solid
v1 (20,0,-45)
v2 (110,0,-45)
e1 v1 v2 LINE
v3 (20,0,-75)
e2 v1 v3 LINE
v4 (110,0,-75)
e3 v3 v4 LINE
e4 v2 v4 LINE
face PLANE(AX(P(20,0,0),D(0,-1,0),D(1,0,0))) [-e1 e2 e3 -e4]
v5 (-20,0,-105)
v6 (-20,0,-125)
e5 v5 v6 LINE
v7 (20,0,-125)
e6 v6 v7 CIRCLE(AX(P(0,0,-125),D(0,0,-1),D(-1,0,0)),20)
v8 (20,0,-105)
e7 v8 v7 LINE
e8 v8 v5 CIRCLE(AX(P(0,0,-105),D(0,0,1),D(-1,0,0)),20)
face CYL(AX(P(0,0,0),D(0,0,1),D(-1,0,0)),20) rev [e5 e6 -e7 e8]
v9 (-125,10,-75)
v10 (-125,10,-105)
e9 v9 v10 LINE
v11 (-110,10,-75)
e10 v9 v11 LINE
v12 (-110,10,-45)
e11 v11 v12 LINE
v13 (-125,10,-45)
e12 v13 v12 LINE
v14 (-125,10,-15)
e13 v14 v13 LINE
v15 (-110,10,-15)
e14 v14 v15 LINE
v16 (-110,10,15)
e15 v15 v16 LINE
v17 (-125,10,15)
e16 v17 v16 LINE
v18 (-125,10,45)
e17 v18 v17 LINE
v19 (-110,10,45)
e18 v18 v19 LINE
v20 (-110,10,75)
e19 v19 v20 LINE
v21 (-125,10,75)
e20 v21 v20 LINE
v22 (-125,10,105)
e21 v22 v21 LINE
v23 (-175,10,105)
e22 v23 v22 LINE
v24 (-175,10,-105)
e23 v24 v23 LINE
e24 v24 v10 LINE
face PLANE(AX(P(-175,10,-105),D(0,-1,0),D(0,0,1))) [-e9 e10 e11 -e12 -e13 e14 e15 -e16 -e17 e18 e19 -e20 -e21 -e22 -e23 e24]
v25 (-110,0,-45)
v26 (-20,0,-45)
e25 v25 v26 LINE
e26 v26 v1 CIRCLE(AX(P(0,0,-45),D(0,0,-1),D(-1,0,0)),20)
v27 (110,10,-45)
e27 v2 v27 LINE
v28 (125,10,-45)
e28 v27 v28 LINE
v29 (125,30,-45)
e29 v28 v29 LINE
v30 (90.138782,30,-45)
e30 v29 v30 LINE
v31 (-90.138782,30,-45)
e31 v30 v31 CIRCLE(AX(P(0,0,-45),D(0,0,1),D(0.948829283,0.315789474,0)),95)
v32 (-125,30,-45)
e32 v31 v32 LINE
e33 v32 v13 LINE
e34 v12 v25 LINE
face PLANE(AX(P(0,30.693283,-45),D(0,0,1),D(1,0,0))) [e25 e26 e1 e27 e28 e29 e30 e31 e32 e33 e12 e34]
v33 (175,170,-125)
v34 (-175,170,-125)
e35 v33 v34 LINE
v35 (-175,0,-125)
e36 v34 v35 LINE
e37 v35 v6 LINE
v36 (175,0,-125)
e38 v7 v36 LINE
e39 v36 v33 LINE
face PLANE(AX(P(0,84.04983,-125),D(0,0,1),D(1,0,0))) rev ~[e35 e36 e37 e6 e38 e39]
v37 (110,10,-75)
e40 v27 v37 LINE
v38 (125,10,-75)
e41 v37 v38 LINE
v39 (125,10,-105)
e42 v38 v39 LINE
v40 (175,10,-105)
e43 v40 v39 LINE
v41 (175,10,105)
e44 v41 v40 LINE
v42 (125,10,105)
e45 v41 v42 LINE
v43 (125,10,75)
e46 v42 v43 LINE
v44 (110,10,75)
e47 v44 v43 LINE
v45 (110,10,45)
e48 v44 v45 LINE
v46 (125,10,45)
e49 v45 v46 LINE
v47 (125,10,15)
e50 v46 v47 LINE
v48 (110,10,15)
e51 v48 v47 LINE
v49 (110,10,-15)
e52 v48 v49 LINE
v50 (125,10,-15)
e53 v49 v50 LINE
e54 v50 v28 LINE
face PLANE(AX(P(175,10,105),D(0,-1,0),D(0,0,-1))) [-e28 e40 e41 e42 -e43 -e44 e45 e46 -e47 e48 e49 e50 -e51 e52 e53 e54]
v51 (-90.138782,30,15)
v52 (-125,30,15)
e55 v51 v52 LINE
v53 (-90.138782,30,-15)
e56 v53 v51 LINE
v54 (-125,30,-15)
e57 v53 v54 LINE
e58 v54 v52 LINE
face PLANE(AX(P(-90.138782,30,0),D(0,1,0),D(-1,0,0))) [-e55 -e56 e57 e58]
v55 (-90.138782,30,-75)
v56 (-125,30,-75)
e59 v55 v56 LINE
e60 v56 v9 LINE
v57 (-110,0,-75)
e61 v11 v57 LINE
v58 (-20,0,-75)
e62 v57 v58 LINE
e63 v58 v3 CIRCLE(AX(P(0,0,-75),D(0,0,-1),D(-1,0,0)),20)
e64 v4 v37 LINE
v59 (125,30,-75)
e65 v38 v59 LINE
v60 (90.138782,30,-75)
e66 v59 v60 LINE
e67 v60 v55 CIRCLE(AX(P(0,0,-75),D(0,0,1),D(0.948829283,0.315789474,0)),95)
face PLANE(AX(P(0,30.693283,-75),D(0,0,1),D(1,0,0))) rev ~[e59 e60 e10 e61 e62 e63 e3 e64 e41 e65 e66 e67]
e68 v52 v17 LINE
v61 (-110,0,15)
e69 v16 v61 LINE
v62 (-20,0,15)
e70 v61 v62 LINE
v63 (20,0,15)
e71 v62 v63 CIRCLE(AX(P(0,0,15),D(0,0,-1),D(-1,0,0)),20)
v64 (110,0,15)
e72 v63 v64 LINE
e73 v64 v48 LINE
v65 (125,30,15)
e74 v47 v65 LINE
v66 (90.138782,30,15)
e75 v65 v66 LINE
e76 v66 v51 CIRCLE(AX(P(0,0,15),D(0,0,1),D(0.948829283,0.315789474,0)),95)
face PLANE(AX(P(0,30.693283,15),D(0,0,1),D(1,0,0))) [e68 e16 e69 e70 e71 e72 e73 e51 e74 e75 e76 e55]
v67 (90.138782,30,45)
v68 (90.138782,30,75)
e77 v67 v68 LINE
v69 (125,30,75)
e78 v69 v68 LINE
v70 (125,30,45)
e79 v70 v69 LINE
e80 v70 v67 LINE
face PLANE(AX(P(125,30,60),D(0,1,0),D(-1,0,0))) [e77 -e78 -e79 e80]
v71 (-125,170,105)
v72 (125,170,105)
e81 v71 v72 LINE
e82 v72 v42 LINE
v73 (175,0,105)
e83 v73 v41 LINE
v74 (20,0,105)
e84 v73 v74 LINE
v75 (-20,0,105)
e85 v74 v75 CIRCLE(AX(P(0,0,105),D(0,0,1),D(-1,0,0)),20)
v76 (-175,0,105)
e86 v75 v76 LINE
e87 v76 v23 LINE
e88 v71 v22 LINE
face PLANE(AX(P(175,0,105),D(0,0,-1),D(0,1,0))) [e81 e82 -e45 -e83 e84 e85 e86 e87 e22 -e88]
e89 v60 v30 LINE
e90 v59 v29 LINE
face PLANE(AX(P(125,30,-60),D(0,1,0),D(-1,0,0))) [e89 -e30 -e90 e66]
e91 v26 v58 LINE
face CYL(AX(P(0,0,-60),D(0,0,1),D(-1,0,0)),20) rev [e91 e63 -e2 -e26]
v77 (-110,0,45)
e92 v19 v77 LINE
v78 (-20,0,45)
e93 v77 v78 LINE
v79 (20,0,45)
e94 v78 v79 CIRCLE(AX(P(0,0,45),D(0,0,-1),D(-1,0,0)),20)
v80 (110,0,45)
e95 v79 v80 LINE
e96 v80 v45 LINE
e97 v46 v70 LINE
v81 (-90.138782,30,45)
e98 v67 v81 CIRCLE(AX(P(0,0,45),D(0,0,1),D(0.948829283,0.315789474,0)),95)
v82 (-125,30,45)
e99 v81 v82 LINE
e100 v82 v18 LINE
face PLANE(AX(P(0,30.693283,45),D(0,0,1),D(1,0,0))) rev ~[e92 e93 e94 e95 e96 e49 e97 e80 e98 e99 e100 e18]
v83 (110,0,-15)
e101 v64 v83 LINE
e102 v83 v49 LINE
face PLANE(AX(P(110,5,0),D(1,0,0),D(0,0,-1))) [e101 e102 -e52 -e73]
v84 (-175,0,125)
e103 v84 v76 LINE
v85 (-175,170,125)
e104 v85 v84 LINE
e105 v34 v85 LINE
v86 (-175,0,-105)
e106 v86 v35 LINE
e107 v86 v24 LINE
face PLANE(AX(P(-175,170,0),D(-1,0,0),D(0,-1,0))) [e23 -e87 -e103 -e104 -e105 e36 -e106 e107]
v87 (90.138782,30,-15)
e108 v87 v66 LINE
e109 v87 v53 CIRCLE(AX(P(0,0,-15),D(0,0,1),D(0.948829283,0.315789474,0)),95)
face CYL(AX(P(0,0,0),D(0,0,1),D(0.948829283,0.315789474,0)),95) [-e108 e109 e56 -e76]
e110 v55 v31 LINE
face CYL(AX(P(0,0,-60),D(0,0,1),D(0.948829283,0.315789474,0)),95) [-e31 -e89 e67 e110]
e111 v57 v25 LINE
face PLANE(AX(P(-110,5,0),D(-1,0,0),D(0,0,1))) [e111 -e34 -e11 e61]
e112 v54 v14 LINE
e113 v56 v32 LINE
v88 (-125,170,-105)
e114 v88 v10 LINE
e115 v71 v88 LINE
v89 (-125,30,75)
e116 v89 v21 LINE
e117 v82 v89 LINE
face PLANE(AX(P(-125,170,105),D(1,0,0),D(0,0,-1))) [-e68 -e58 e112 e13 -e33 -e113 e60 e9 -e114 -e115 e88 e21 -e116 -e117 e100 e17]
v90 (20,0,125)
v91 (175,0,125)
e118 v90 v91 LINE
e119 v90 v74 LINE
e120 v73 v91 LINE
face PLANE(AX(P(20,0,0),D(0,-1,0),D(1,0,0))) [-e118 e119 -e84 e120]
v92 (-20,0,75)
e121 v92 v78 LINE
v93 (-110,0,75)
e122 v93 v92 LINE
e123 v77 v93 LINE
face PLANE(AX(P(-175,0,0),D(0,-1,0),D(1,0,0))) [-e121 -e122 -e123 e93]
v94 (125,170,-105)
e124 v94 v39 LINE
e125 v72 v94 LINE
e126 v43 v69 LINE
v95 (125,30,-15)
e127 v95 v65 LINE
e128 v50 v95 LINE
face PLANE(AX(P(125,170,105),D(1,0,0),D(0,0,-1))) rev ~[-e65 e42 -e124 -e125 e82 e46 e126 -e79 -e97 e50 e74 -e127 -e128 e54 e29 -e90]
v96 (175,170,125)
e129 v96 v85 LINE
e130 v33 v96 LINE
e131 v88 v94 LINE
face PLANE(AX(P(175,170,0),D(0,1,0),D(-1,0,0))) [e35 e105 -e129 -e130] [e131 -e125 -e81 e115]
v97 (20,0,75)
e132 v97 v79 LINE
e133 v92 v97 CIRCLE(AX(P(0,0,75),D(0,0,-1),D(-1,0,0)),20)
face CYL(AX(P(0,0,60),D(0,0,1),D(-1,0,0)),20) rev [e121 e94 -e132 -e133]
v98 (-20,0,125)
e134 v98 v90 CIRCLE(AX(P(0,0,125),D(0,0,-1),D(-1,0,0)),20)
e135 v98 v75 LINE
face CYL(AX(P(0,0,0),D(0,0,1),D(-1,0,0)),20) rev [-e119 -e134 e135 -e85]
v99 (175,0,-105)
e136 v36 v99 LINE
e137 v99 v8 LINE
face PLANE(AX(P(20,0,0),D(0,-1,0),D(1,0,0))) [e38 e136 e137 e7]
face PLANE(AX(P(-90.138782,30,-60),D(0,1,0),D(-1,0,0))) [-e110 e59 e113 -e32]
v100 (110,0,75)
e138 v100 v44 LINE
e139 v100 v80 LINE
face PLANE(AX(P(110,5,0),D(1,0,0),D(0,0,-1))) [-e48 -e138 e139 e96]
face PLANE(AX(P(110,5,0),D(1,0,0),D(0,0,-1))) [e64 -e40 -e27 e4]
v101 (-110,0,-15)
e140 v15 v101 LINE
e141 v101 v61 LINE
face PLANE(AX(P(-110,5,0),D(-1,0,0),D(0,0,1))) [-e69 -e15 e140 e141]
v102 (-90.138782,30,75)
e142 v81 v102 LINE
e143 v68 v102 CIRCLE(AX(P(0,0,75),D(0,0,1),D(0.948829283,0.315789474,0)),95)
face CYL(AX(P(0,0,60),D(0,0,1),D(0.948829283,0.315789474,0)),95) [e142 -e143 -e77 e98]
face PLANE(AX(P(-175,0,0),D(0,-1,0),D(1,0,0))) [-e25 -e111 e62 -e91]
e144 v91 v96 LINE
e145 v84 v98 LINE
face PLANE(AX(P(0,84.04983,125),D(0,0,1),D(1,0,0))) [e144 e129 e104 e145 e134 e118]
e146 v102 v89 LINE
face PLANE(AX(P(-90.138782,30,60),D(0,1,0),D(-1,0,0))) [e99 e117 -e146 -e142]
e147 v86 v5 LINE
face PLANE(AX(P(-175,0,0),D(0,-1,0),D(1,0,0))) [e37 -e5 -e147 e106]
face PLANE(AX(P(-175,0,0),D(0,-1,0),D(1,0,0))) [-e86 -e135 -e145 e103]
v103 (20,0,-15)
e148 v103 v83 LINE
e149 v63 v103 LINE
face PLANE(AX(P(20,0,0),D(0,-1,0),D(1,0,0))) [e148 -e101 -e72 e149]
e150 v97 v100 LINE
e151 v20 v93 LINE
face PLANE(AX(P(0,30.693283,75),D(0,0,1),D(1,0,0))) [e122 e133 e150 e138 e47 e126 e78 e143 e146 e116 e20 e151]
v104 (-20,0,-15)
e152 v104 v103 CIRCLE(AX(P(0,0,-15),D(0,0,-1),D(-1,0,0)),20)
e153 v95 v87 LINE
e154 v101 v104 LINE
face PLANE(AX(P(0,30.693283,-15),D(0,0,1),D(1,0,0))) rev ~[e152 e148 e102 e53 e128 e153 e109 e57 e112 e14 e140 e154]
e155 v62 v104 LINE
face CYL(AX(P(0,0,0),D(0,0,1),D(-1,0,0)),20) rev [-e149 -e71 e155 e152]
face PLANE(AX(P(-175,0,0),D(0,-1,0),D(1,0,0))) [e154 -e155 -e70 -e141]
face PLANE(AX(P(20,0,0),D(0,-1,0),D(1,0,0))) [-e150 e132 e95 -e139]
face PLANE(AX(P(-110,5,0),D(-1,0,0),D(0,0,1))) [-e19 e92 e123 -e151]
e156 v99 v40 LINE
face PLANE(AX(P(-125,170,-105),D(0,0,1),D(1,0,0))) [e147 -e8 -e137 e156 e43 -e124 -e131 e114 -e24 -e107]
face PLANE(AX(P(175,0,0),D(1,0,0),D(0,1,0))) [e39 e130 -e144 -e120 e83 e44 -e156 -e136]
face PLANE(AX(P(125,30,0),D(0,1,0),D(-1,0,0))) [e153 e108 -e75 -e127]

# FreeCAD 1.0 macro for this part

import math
import FreeCAD as App
import Part
import Sketcher
from FreeCAD import Vector
Q = App.Units.Quantity


def add_polygon(sketch, points):
    """Adds a closed chain of lines whose ends are joined by coincident constraints."""
    first, n = sketch.GeometryCount, len(points)
    for a, b in zip(points, points[1:] + points[:1]):
        sketch.addGeometry(Part.LineSegment(App.Vector(*a, 0), App.Vector(*b, 0)), False)
    for i in range(n):
        sketch.addConstraint(Sketcher.Constraint("Coincident", first + i, 2, first + (i + 1) % n, 1))

doc = App.newDocument("Part")
body = doc.addObject("PartDesign::Body", "Body")

sketch1 = body.newObject("Sketcher::SketchObject", "Sketch")
sketch1.AttachmentSupport = (doc.getObject("XY_Plane"), [""])
sketch1.MapMode = "FlatFace"
sketch1.addGeometry([
    Part.LineSegment(Vector(20, 0, 0), Vector(175, 0, 0)),
    Part.LineSegment(Vector(175, 0, 0), Vector(175, 170, 0)),
    Part.LineSegment(Vector(175, 170, 0), Vector(-175, 170, 0)),
    Part.LineSegment(Vector(-175, 170, 0), Vector(-175, 0, 0)),
    Part.LineSegment(Vector(-175, 0, 0), Vector(-20, 0, 0)),
    Part.ArcOfCircle(Part.Circle(Vector(0, 0, 0), Vector(0, 0, 1), 20), math.radians(0), math.radians(180)),
], False)
sketch1.addConstraint([
    Sketcher.Constraint("Coincident", 0, 2, 1, 1),
    Sketcher.Constraint("Coincident", 1, 2, 2, 1),
    Sketcher.Constraint("Coincident", 2, 2, 3, 1),
    Sketcher.Constraint("Coincident", 3, 2, 4, 1),
    Sketcher.Constraint("Coincident", 4, 2, 5, 2),
    Sketcher.Constraint("Coincident", 5, 1, 0, 1),
    Sketcher.Constraint("Horizontal", 0),
    Sketcher.Constraint("Vertical", 1),
    Sketcher.Constraint("Horizontal", 2),
    Sketcher.Constraint("Vertical", 3),
    Sketcher.Constraint("Horizontal", 4),
    Sketcher.Constraint("Coincident", 5, 3, -1, 1),
    Sketcher.Constraint("Symmetric", 0, 2, 3, 2, -1, 1),
    Sketcher.Constraint("PointOnObject", 0, 2, -1),
    Sketcher.Constraint("Radius", 5, Q("20 mm")),
    Sketcher.Constraint("DistanceX", 0, 1, 0, 2, Q("155 mm")),
    Sketcher.Constraint("DistanceY", 1, 1, 1, 2, Q("170 mm")),
])
pad1 = body.newObject("PartDesign::Pad", "Pad")
pad1.Profile = sketch1
pad1.Length = 250
pad1.Midplane = True

sketch2 = body.newObject("Sketcher::SketchObject", "Sketch001")
sketch2.AttachmentSupport = (doc.getObject("XZ_Plane"), [""])
sketch2.MapMode = "FlatFace"
sketch2.AttachmentOffset = App.Placement(Vector(0, 0, -170), App.Rotation())
add_polygon(sketch2, [(-125, -105), (-125, 105), (125, 105), (125, -105)])
sketch2.addConstraint([
    Sketcher.Constraint("Vertical", 0),
    Sketcher.Constraint("Horizontal", 1),
    Sketcher.Constraint("Vertical", 2),
    Sketcher.Constraint("Horizontal", 3),
    Sketcher.Constraint("Symmetric", 0, 2, 2, 2, -1, 1),
    Sketcher.Constraint("DistanceX", 1, 1, 1, 2, Q("250 mm")),
    Sketcher.Constraint("DistanceY", 0, 1, 0, 2, Q("210 mm")),
])
pocket1 = body.newObject("PartDesign::Pocket", "Pocket")
pocket1.Profile = sketch2
pocket1.Length = 250
pocket1.Reversed = True

sketch3 = body.newObject("Sketcher::SketchObject", "Sketch002")
sketch3.AttachmentSupport = (doc.getObject("XY_Plane"), [""])
sketch3.MapMode = "FlatFace"
sketch3.addGeometry([
    Part.LineSegment(Vector(125, 0, 0), Vector(125, 30, 0)),
    Part.LineSegment(Vector(125, 30, 0), Vector(90, 30, 0)),
    Part.ArcOfCircle(Part.Circle(Vector(0, 0, 0), Vector(0, 0, 1), 95), math.radians(18), math.radians(162)),
    Part.LineSegment(Vector(-90, 30, 0), Vector(-125, 30, 0)),
    Part.LineSegment(Vector(-125, 30, 0), Vector(-125, 0, 0)),
    Part.LineSegment(Vector(-125, 0, 0), Vector(-20, 0, 0)),
    Part.ArcOfCircle(Part.Circle(Vector(0, 0, 0), Vector(0, 0, 1), 20), math.radians(0), math.radians(180)),
    Part.LineSegment(Vector(20, 0, 0), Vector(125, 0, 0)),
], False)
sketch3.addConstraint([
    Sketcher.Constraint("Coincident", 0, 2, 1, 1),
    Sketcher.Constraint("Coincident", 1, 2, 2, 1),
    Sketcher.Constraint("Coincident", 2, 2, 3, 1),
    Sketcher.Constraint("Coincident", 3, 2, 4, 1),
    Sketcher.Constraint("Coincident", 4, 2, 5, 1),
    Sketcher.Constraint("Coincident", 5, 2, 6, 2),
    Sketcher.Constraint("Coincident", 6, 1, 7, 1),
    Sketcher.Constraint("Coincident", 7, 2, 0, 1),
    Sketcher.Constraint("Vertical", 0),
    Sketcher.Constraint("Horizontal", 1),
    Sketcher.Constraint("Horizontal", 3),
    Sketcher.Constraint("Vertical", 4),
    Sketcher.Constraint("Horizontal", 5),
    Sketcher.Constraint("Horizontal", 7),
    Sketcher.Constraint("Coincident", 2, 3, -1, 1),
    Sketcher.Constraint("Coincident", 6, 3, -1, 1),
    Sketcher.Constraint("Symmetric", 4, 2, 7, 2, -1, 1),
    Sketcher.Constraint("PointOnObject", 4, 2, -1),
    Sketcher.Constraint("Horizontal", 1, 2, 2, 2),
    Sketcher.Constraint("Radius", 2, Q("95 mm")),
    Sketcher.Constraint("Radius", 6, Q("20 mm")),
    Sketcher.Constraint("DistanceX", 5, 1, 5, 2, Q("105 mm")),
    Sketcher.Constraint("DistanceY", 0, 1, 0, 2, Q("30 mm")),
])
pad2 = body.newObject("PartDesign::Pad", "Pad001")
pad2.Profile = sketch3
pad2.Length = 30
pad2.Midplane = True
doc.recompute()

linearpattern = body.newObject("PartDesign::LinearPattern", "LinearPattern")
linearpattern.Originals = [pad2]
linearpattern.Direction = (doc.getObject("Z_Axis"), [""])
linearpattern.Mode = "offset"
linearpattern.Offset = 60
linearpattern.Occurrences = 2
body.Tip = linearpattern
doc.recompute()

linearpattern2 = body.newObject("PartDesign::LinearPattern", "LinearPattern001")
linearpattern2.Originals = [pad2]
linearpattern2.Direction = (doc.getObject("Z_Axis"), [""])
linearpattern2.Mode = "offset"
linearpattern2.Offset = 60
linearpattern2.Occurrences = 2
linearpattern2.Reversed = True
body.Tip = linearpattern2

sketch4 = body.newObject("Sketcher::SketchObject", "Sketch003")
sketch4.AttachmentSupport = (doc.getObject("YZ_Plane"), [""])
sketch4.MapMode = "FlatFace"
sketch4.AttachmentOffset = App.Placement(Vector(0, 0, 175), App.Rotation())
add_polygon(sketch4, [(10, 105), (0, 105), (0, -105), (10, -105)])
sketch4.addConstraint([
    Sketcher.Constraint("Horizontal", 0),
    Sketcher.Constraint("Vertical", 1),
    Sketcher.Constraint("Horizontal", 2),
    Sketcher.Constraint("Vertical", 3),
    Sketcher.Constraint("Symmetric", 0, 2, 1, 2, -1, 1),
    Sketcher.Constraint("DistanceX", 0, 2, 0, 1, Q("10 mm")),
    Sketcher.Constraint("DistanceY", 1, 2, 1, 1, Q("210 mm")),
])
pocket2 = body.newObject("PartDesign::Pocket", "Pocket001")
pocket2.Profile = sketch4
pocket2.Length = 65

sketch5 = body.newObject("Sketcher::SketchObject", "Sketch004")
sketch5.AttachmentSupport = (doc.getObject("YZ_Plane"), [""])
sketch5.MapMode = "FlatFace"
sketch5.AttachmentOffset = App.Placement(Vector(0, 0, -175), App.Rotation())
add_polygon(sketch5, [(10, -105), (0, -105), (0, 105), (10, 105)])
sketch5.addConstraint([
    Sketcher.Constraint("Horizontal", 0),
    Sketcher.Constraint("Vertical", 1),
    Sketcher.Constraint("Horizontal", 2),
    Sketcher.Constraint("Vertical", 3),
    Sketcher.Constraint("Symmetric", 0, 2, 1, 2, -1, 1),
    Sketcher.Constraint("DistanceX", 0, 2, 0, 1, Q("10 mm")),
    Sketcher.Constraint("DistanceY", 1, 1, 1, 2, Q("210 mm")),
])
pocket3 = body.newObject("PartDesign::Pocket", "Pocket002")
pocket3.Profile = sketch5
pocket3.Length = 65
pocket3.Reversed = True

doc.recompute()
